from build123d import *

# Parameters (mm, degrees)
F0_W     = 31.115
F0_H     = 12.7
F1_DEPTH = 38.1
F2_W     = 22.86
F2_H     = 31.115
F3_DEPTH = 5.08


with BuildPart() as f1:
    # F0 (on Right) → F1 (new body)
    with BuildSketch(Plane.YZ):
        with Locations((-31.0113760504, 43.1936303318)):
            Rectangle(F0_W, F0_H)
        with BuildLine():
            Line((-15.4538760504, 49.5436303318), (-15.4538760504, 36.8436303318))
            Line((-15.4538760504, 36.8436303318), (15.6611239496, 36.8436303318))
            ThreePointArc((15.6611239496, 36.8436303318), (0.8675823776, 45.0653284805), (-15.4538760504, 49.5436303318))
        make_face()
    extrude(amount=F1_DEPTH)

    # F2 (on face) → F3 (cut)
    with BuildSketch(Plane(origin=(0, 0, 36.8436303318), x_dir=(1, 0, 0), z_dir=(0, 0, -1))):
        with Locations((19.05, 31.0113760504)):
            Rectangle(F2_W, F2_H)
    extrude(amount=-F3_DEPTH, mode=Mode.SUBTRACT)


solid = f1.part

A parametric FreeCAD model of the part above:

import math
import FreeCAD as App
import Part
import Sketcher
from FreeCAD import Vector
Q = App.Units.Quantity

doc = App.newDocument("Part")
body = doc.addObject("PartDesign::Body", "Body")

# Sketch on YZ plane
sketch1 = body.newObject("Sketcher::SketchObject", "Sketch")
sketch1.AttachmentSupport = (doc.getObject("YZ_Plane"), [""])
sketch1.MapMode = "FlatFace"
sketch1.addGeometry([
    Part.LineSegment(Vector(-46.568876, 49.54363, 0), Vector(-46.568876, 36.84363, 0)),
    Part.LineSegment(Vector(-46.568876, 36.84363, 0), Vector(15.661124, 36.84363, 0)),
    Part.ArcOfCircle(Part.Circle(Vector(-25.904904, -20.527262, 0), Vector(0, 0, 1), 70.845987), math.radians(54.076136), math.radians(81.516907)),
    Part.LineSegment(Vector(-15.453876, 49.54363, 0), Vector(-46.568876, 49.54363, 0)),
], False)
sketch1.addConstraint([
    Sketcher.Constraint("Coincident", 0, 2, 1, 1),
    Sketcher.Constraint("Coincident", 1, 2, 2, 1),
    Sketcher.Constraint("Coincident", 2, 2, 3, 1),
    Sketcher.Constraint("Coincident", 3, 2, 0, 1),
    Sketcher.Constraint("Vertical", 0),
    Sketcher.Constraint("Horizontal", 1),
    Sketcher.Constraint("Horizontal", 3),
    Sketcher.Constraint("DistanceY", 0, 2, 0, 1, Q("0.5 in")),
    Sketcher.Constraint("DistanceX", 1, 1, 1, 2, Q("2.45 in")),
    Sketcher.Constraint("DistanceX", 3, 2, 3, 1, Q("1.225 in")),
    Sketcher.Constraint("Radius", 2, 70.845987),
    Sketcher.Constraint("DistanceY", 2, 3, -1, 1, 20.527262),
    Sketcher.Constraint("DistanceX", 2, 3, -1, 1, 25.904904),
])
pad1 = body.newObject("PartDesign::Pad", "Pad")
pad1.Profile = sketch1
pad1.Length = Q("1.5 in")

# Sketch on XY plane
sketch2 = body.newObject("Sketcher::SketchObject", "Sketch001")
sketch2.AttachmentSupport = (doc.getObject("XY_Plane"), [""])
sketch2.MapMode = "FlatFace"
sketch2.AttachmentOffset = App.Placement(Vector(0, 0, 36.84363), App.Rotation())
sketch2.addGeometry([
    Part.LineSegment(Vector(7.62, -46.568876, 0), Vector(7.62, -15.453876, 0)),
    Part.LineSegment(Vector(7.62, -15.453876, 0), Vector(30.48, -15.453876, 0)),
    Part.LineSegment(Vector(30.48, -15.453876, 0), Vector(30.48, -46.568876, 0)),
    Part.LineSegment(Vector(30.48, -46.568876, 0), Vector(7.62, -46.568876, 0)),
], False)
sketch2.addConstraint([
    Sketcher.Constraint("Coincident", 0, 2, 1, 1),
    Sketcher.Constraint("Coincident", 1, 2, 2, 1),
    Sketcher.Constraint("Coincident", 2, 2, 3, 1),
    Sketcher.Constraint("Coincident", 3, 2, 0, 1),
    Sketcher.Constraint("Vertical", 0),
    Sketcher.Constraint("Horizontal", 1),
    Sketcher.Constraint("Vertical", 2),
    Sketcher.Constraint("Horizontal", 3),
    Sketcher.Constraint("DistanceX", 1, 1, 1, 2, Q("0.9 in")),
    Sketcher.Constraint("DistanceX", -1, 1, 0, 2, Q("0.3 in")),
    Sketcher.Constraint("DistanceY", 0, 1, 0, 2, Q("1.225 in")),
    Sketcher.Constraint("DistanceY", 0, 2, -1, 1, 15.453876),
])
pocket1 = body.newObject("PartDesign::Pocket", "Pocket")
pocket1.Profile = sketch2
pocket1.Length = Q("0.2 in")
pocket1.Reversed = True

doc.recompute()
